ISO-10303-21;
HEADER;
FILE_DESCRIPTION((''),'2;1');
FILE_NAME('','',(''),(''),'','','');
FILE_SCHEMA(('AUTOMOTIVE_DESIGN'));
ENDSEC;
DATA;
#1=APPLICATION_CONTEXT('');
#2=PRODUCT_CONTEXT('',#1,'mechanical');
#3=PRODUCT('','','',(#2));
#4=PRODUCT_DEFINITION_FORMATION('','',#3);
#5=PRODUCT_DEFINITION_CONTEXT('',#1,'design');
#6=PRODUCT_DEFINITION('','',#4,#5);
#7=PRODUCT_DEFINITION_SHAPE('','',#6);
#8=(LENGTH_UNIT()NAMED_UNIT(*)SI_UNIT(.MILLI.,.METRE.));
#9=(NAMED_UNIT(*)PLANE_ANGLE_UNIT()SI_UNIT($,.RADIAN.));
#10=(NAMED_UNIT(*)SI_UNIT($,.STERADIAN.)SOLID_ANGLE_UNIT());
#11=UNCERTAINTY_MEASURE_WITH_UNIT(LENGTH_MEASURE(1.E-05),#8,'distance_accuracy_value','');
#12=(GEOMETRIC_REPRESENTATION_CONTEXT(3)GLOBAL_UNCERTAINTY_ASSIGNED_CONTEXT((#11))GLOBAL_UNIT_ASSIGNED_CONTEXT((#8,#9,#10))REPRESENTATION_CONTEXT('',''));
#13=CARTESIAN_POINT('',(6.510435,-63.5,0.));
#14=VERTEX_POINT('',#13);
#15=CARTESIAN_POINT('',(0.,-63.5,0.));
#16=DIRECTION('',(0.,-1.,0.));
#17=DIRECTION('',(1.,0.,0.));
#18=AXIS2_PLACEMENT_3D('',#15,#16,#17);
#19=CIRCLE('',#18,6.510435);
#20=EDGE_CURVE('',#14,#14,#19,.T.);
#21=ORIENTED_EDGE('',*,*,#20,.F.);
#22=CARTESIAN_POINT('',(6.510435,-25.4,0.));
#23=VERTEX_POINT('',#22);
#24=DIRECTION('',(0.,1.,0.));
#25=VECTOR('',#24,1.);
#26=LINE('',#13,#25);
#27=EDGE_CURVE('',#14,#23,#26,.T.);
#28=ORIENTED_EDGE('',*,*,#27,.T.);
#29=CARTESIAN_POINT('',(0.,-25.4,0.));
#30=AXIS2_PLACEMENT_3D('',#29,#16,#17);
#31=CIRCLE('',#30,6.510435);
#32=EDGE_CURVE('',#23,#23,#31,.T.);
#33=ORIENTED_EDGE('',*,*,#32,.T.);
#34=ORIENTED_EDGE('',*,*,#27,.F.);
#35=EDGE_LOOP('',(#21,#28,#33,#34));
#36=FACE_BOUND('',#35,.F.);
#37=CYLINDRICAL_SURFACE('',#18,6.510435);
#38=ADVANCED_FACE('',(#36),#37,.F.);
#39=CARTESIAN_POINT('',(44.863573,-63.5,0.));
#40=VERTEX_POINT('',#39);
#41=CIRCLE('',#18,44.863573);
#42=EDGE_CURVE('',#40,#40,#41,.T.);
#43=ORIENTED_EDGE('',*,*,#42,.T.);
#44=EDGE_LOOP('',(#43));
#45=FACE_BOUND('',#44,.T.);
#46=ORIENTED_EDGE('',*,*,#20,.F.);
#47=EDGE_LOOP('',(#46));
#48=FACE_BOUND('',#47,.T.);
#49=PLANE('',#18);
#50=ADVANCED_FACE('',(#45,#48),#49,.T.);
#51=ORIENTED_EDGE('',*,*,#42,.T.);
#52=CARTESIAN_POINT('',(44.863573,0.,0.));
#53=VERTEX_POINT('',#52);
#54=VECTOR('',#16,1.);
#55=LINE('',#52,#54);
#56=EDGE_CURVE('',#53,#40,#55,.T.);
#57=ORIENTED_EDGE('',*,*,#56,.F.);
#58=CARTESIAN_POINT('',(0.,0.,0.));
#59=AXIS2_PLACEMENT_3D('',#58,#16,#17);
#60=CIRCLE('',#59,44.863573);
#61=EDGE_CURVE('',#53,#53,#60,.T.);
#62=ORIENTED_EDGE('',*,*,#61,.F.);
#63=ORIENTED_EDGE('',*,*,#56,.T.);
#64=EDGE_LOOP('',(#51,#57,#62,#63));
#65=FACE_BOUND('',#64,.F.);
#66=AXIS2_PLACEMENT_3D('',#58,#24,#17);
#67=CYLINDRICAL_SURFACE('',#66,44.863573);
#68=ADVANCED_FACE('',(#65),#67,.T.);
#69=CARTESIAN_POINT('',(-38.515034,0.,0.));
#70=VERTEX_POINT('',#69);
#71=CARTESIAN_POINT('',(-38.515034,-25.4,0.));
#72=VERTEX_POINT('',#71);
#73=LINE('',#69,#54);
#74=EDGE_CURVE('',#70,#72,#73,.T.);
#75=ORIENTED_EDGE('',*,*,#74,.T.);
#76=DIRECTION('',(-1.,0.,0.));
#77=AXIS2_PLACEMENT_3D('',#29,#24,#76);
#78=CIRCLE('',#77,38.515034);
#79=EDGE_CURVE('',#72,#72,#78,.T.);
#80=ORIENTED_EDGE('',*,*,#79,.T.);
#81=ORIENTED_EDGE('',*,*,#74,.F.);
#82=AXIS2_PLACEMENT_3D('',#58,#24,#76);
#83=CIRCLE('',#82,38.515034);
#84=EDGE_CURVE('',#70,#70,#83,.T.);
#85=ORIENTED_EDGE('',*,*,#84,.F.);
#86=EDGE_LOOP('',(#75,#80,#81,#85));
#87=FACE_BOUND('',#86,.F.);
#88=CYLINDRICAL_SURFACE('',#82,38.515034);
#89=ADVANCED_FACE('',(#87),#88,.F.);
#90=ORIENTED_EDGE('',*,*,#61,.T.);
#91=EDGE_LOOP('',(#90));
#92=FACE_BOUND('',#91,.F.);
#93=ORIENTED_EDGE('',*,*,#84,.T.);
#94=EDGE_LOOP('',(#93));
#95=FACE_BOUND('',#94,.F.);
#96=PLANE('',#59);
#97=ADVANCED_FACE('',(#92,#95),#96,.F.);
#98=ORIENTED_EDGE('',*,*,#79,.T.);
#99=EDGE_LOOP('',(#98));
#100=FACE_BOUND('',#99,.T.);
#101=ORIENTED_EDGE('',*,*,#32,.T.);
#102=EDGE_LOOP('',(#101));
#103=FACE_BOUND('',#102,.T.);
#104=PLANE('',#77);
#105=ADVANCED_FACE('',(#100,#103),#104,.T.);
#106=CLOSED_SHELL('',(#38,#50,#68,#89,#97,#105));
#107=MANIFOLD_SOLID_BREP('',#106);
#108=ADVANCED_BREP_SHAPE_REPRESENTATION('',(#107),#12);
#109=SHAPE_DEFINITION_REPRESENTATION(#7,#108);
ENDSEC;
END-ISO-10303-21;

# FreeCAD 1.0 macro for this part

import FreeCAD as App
import Part
import Sketcher
from FreeCAD import Vector
Q = App.Units.Quantity

doc = App.newDocument("Part")
body = doc.addObject("PartDesign::Body", "Body")

# Sketch on XZ plane
sketch1 = body.newObject("Sketcher::SketchObject", "Sketch")
sketch1.AttachmentSupport = (doc.getObject("XZ_Plane"), [""])
sketch1.MapMode = "FlatFace"
sketch1.addGeometry(Part.Circle(Vector(0, 0, 0), Vector(0, 0, 1), 44.863573), False)
sketch1.addConstraint([
    Sketcher.Constraint("Coincident", 0, 3, -1, 1),
    Sketcher.Constraint("Diameter", 0, 89.727146),
])
pad1 = body.newObject("PartDesign::Pad", "Pad")
pad1.Profile = sketch1
pad1.Length = Q("2.5 in")

# Sketch on XZ plane
sketch2 = body.newObject("Sketcher::SketchObject", "Sketch001")
sketch2.AttachmentSupport = (doc.getObject("XZ_Plane"), [""])
sketch2.MapMode = "FlatFace"
sketch2.addGeometry(Part.Circle(Vector(0, 0, 0), Vector(0, 0, 1), 38.515034), False)
sketch2.addConstraint([
    Sketcher.Constraint("Coincident", 0, 3, -1, 1),
    Sketcher.Constraint("Diameter", 0, 77.030068),
])
pocket1 = body.newObject("PartDesign::Pocket", "Pocket")
pocket1.Profile = sketch2
pocket1.Length = Q("1 in")
pocket1.Reversed = True

# Sketch on XZ plane
sketch3 = body.newObject("Sketcher::SketchObject", "Sketch002")
sketch3.AttachmentSupport = (doc.getObject("XZ_Plane"), [""])
sketch3.MapMode = "FlatFace"
sketch3.AttachmentOffset = App.Placement(Vector(0, 0, 2.5 * 25.4), App.Rotation())
sketch3.addGeometry(Part.Circle(Vector(0, 0, 0), Vector(0, 0, 1), 6.510435), False)
sketch3.addConstraint([
    Sketcher.Constraint("Coincident", 0, 3, -1, 1),
    Sketcher.Constraint("Diameter", 0, 13.02087),
])
pocket2 = body.newObject("PartDesign::Pocket", "Pocket001")
pocket2.Profile = sketch3
pocket2.Length = Q("2.5 in")

doc.recompute()
